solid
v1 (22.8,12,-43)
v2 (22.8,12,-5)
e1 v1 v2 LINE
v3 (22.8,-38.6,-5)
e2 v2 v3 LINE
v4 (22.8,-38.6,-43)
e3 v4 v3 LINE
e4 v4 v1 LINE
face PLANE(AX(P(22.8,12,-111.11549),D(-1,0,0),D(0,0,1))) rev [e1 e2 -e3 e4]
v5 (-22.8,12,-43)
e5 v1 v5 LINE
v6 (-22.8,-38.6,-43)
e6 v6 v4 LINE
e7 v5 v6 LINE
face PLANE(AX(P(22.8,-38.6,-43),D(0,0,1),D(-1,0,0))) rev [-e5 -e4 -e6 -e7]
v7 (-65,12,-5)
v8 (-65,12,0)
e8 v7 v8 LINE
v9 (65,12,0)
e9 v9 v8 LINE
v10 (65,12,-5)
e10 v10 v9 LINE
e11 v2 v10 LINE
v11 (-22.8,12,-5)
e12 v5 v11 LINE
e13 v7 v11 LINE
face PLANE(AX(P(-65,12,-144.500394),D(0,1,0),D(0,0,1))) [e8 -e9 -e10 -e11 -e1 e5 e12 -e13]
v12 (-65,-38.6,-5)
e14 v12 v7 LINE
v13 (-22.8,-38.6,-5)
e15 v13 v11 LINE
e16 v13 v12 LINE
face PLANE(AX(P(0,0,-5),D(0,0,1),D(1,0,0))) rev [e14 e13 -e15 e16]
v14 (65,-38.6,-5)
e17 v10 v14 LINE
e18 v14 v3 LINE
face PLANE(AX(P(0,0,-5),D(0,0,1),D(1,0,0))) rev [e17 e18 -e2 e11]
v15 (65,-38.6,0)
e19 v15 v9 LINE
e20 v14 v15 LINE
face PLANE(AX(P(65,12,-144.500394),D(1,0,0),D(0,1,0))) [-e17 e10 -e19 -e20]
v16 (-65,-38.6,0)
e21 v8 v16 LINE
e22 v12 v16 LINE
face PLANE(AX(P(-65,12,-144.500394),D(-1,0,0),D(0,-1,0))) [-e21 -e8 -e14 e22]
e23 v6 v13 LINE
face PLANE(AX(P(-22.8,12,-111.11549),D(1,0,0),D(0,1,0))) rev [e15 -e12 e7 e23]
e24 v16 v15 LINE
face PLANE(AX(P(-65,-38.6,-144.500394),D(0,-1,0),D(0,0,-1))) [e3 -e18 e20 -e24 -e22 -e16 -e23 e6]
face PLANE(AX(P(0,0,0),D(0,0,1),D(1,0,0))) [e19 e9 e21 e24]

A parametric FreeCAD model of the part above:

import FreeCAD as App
import Part
import Sketcher

V = App.Vector
Q = App.Units.Quantity

doc = App.newDocument("Part")
body = doc.addObject("PartDesign::Body", "Body")

sketch1 = body.newObject("Sketcher::SketchObject", "Sketch")
sketch1.AttachmentSupport = (doc.getObject("XY_Plane"), [""])
sketch1.MapMode = "FlatFace"
sketch1.addGeometry([
    Part.LineSegment(V(-65, 12, 0), V(-65, -38.6, 0)),
    Part.LineSegment(V(-65, -38.6, 0), V(65, -38.6, 0)),
    Part.LineSegment(V(65, -38.6, 0), V(65, 12, 0)),
    Part.LineSegment(V(65, 12, 0), V(-65, 12, 0)),
], False)
sketch1.addConstraint([
    Sketcher.Constraint("Coincident", 0, 2, 1, 1),
    Sketcher.Constraint("Coincident", 1, 2, 2, 1),
    Sketcher.Constraint("Coincident", 2, 2, 3, 1),
    Sketcher.Constraint("Coincident", 3, 2, 0, 1),
    Sketcher.Constraint("Vertical", 0),
    Sketcher.Constraint("Horizontal", 1),
    Sketcher.Constraint("Vertical", 2),
    Sketcher.Constraint("Horizontal", 3),
    Sketcher.Constraint("DistanceX", 1, 1, 1, 2, Q("130 mm")),
    Sketcher.Constraint("DistanceY", 0, 2, 0, 1, Q("50.6 mm")),
    Sketcher.Constraint("DistanceX", 0, 2, -1, 1, Q("65 mm")),
    Sketcher.Constraint("DistanceY", -1, 1, 2, 2, Q("12 mm")),
])
pad1 = body.newObject("PartDesign::Pad", "Pad")
pad1.Profile = sketch1
pad1.Length = 5
pad1.Reversed = True

sketch2 = body.newObject("Sketcher::SketchObject", "Sketch001")
sketch2.AttachmentSupport = (doc.getObject("XY_Plane"), [""])
sketch2.MapMode = "FlatFace"
sketch2.AttachmentOffset = App.Placement(V(0, 0, -5), App.Rotation())
sketch2.addGeometry([
    Part.LineSegment(V(22.8, 12, 0), V(22.8, -38.6, 0)),
    Part.LineSegment(V(22.8, -38.6, 0), V(-22.8, -38.6, 0)),
    Part.LineSegment(V(-22.8, -38.6, 0), V(-22.8, 12, 0)),
    Part.LineSegment(V(-22.8, 12, 0), V(22.8, 12, 0)),
], False)
sketch2.addConstraint([
    Sketcher.Constraint("Coincident", 0, 2, 1, 1),
    Sketcher.Constraint("Coincident", 1, 2, 2, 1),
    Sketcher.Constraint("Coincident", 2, 2, 3, 1),
    Sketcher.Constraint("Coincident", 3, 2, 0, 1),
    Sketcher.Constraint("Vertical", 0),
    Sketcher.Constraint("Horizontal", 1),
    Sketcher.Constraint("Vertical", 2),
    Sketcher.Constraint("Horizontal", 3),
    Sketcher.Constraint("DistanceX", 1, 2, 1, 1, Q("45.6 mm")),
    Sketcher.Constraint("DistanceY", 0, 2, 0, 1, Q("50.6 mm")),
    Sketcher.Constraint("DistanceY", -1, 1, 2, 2, Q("12 mm")),
    Sketcher.Constraint("DistanceX", -1, 1, 0, 2, Q("22.8 mm")),
])
pad2 = body.newObject("PartDesign::Pad", "Pad001")
pad2.Profile = sketch2
pad2.Length = 38
pad2.Reversed = True

doc.recompute()
